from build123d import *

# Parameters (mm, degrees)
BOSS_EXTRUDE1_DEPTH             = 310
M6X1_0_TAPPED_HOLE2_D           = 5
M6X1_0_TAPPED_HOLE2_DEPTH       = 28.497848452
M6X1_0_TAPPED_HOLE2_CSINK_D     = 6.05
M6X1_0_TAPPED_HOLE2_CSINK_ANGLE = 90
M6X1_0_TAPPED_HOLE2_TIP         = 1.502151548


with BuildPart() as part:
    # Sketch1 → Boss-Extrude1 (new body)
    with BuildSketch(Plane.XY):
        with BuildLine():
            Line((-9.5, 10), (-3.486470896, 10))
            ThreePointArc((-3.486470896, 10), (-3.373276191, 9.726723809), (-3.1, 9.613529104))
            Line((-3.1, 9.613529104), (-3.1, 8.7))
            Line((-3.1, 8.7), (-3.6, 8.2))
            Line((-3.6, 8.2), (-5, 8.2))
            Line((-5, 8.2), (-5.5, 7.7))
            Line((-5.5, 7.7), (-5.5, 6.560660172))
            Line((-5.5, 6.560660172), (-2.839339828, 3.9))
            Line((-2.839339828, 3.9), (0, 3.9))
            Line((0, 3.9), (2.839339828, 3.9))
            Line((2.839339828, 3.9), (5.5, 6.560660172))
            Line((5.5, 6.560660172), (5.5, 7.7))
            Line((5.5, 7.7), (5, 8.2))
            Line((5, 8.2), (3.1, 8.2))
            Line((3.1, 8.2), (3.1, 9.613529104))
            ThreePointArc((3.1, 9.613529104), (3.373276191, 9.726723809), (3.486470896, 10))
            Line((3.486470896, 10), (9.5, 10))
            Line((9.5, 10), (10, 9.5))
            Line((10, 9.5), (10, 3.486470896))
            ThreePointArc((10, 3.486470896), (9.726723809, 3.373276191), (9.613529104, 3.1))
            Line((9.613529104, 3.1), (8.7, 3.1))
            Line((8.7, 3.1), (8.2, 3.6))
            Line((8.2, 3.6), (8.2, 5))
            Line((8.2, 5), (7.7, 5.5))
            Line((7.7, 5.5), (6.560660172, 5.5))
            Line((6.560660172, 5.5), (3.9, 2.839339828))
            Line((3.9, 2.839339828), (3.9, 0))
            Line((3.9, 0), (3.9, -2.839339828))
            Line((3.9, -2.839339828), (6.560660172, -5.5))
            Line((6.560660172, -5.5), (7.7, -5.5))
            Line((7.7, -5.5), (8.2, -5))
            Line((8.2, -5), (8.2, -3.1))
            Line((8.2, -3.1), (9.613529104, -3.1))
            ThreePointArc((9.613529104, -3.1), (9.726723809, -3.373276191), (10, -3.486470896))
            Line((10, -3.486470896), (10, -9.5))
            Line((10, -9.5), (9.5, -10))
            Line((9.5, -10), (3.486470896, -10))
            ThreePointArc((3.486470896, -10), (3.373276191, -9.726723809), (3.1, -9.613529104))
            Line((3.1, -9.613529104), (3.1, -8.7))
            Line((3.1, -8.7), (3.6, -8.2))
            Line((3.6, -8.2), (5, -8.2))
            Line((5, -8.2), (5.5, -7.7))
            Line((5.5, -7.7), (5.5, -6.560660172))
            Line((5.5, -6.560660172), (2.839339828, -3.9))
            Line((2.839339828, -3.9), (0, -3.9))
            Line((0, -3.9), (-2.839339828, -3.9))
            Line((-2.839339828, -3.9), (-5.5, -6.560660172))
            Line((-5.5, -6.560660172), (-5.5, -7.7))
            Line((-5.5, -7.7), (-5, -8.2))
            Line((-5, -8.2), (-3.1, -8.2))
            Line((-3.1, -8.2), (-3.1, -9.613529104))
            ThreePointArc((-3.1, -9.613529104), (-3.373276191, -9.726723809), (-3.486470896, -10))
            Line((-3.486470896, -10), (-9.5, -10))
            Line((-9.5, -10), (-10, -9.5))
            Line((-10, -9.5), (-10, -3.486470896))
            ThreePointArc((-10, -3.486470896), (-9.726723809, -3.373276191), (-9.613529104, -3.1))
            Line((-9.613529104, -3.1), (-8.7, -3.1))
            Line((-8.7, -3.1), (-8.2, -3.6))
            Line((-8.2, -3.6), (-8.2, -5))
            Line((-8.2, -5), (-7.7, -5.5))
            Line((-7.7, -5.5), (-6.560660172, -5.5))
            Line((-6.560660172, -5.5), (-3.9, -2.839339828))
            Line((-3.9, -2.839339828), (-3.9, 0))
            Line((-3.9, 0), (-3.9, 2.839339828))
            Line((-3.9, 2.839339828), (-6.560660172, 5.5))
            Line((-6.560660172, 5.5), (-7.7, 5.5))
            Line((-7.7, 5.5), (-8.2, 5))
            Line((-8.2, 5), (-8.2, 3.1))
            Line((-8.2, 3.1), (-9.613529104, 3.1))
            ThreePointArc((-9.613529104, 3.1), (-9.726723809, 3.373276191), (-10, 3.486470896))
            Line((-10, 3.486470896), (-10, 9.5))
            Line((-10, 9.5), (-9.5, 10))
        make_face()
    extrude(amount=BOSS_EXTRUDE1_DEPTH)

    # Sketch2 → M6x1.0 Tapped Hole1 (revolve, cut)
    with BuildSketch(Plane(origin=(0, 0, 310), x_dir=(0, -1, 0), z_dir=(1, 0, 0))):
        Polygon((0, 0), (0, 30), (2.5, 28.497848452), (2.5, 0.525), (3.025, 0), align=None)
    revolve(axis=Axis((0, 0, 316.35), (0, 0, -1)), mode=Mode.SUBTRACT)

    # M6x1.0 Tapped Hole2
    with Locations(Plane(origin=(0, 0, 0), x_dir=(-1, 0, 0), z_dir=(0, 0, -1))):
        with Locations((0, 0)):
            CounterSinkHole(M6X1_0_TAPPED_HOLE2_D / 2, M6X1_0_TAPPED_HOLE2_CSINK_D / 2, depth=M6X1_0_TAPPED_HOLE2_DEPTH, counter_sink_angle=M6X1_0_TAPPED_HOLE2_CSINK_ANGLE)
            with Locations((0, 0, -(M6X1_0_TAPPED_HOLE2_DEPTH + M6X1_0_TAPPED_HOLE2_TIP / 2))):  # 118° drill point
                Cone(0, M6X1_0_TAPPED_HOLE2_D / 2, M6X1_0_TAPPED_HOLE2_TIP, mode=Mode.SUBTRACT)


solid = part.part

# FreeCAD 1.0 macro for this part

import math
import FreeCAD as App
import Part
import Sketcher
from FreeCAD import Vector
Q = App.Units.Quantity


def add_polygon(sketch, points):
    """Adds a closed chain of lines whose ends are joined by coincident constraints."""
    first, n = sketch.GeometryCount, len(points)
    for a, b in zip(points, points[1:] + points[:1]):
        sketch.addGeometry(Part.LineSegment(App.Vector(*a, 0), App.Vector(*b, 0)), False)
    for i in range(n):
        sketch.addConstraint(Sketcher.Constraint("Coincident", first + i, 2, first + (i + 1) % n, 1))

doc = App.newDocument("Part")
body = doc.addObject("PartDesign::Body", "Body")

# Sketch on XY plane
sketch1 = body.newObject("Sketcher::SketchObject", "Sketch")
sketch1.AttachmentSupport = (doc.getObject("XY_Plane"), [""])
sketch1.MapMode = "FlatFace"
sketch1.addGeometry([
    Part.LineSegment(Vector(-3.49, 10, 0), Vector(-9.5, 10, 0)),  # 0
    Part.LineSegment(Vector(-9.5, 10, 0), Vector(-10, 9.5, 0)),  # 1
    Part.LineSegment(Vector(-10, 9.5, 0), Vector(-10, 3.49, 0)),  # 2
    Part.ArcOfCircle(Part.Circle(Vector(-10, 3.1, 0), Vector(0, 0, 1), 0.39), math.radians(0), math.radians(90)),  # 3
    Part.LineSegment(Vector(-9.61, 3.1, 0), Vector(-8.2, 3.1, 0)),  # 4
    Part.LineSegment(Vector(-8.2, 3.1, 0), Vector(-8.2, 5, 0)),  # 5
    Part.LineSegment(Vector(-8.2, 5, 0), Vector(-7.7, 5.5, 0)),  # 6
    Part.LineSegment(Vector(-7.7, 5.5, 0), Vector(-6.56, 5.5, 0)),  # 7
    Part.LineSegment(Vector(-6.56, 5.5, 0), Vector(-3.9, 2.84, 0)),  # 8
    Part.LineSegment(Vector(-3.9, 2.84, 0), Vector(-3.9, -2.84, 0)),  # 9
    Part.LineSegment(Vector(-3.9, -2.84, 0), Vector(-6.56, -5.5, 0)),  # 10
    Part.LineSegment(Vector(-6.56, -5.5, 0), Vector(-7.7, -5.5, 0)),  # 11
    Part.LineSegment(Vector(-7.7, -5.5, 0), Vector(-8.2, -5, 0)),  # 12
    Part.LineSegment(Vector(-8.2, -5, 0), Vector(-8.2, -3.6, 0)),  # 13
    Part.LineSegment(Vector(-8.2, -3.6, 0), Vector(-8.7, -3.1, 0)),  # 14
    Part.LineSegment(Vector(-8.7, -3.1, 0), Vector(-9.61, -3.1, 0)),  # 15
    Part.ArcOfCircle(Part.Circle(Vector(-10, -3.1, 0), Vector(0, 0, 1), 0.39), math.radians(-90), math.radians(0)),  # 16
    Part.LineSegment(Vector(-10, -3.49, 0), Vector(-10, -9.5, 0)),  # 17
    Part.LineSegment(Vector(-10, -9.5, 0), Vector(-9.5, -10, 0)),  # 18
    Part.LineSegment(Vector(-9.5, -10, 0), Vector(-3.49, -10, 0)),  # 19
    Part.ArcOfCircle(Part.Circle(Vector(-3.1, -10, 0), Vector(0, 0, 1), 0.39), math.radians(90), math.radians(180)),  # 20
    Part.LineSegment(Vector(-3.1, -9.61, 0), Vector(-3.1, -8.2, 0)),  # 21
    Part.LineSegment(Vector(-3.1, -8.2, 0), Vector(-5, -8.2, 0)),  # 22
    Part.LineSegment(Vector(-5, -8.2, 0), Vector(-5.5, -7.7, 0)),  # 23
    Part.LineSegment(Vector(-5.5, -7.7, 0), Vector(-5.5, -6.56, 0)),  # 24
    Part.LineSegment(Vector(-5.5, -6.56, 0), Vector(-2.84, -3.9, 0)),  # 25
    Part.LineSegment(Vector(-2.84, -3.9, 0), Vector(2.84, -3.9, 0)),  # 26
    Part.LineSegment(Vector(2.84, -3.9, 0), Vector(5.5, -6.56, 0)),  # 27
    Part.LineSegment(Vector(5.5, -6.56, 0), Vector(5.5, -7.7, 0)),  # 28
    Part.LineSegment(Vector(5.5, -7.7, 0), Vector(5, -8.2, 0)),  # 29
    Part.LineSegment(Vector(5, -8.2, 0), Vector(3.6, -8.2, 0)),  # 30
    Part.LineSegment(Vector(3.6, -8.2, 0), Vector(3.1, -8.7, 0)),  # 31
    Part.LineSegment(Vector(3.1, -8.7, 0), Vector(3.1, -9.61, 0)),  # 32
    Part.ArcOfCircle(Part.Circle(Vector(3.1, -10, 0), Vector(0, 0, 1), 0.39), math.radians(0), math.radians(90)),  # 33
    Part.LineSegment(Vector(3.49, -10, 0), Vector(9.5, -10, 0)),  # 34
    Part.LineSegment(Vector(9.5, -10, 0), Vector(10, -9.5, 0)),  # 35
    Part.LineSegment(Vector(10, -9.5, 0), Vector(10, -3.49, 0)),  # 36
    Part.ArcOfCircle(Part.Circle(Vector(10, -3.1, 0), Vector(0, 0, 1), 0.39), math.radians(-180), math.radians(-90)),  # 37
    Part.LineSegment(Vector(9.61, -3.1, 0), Vector(8.2, -3.1, 0)),  # 38
    Part.LineSegment(Vector(8.2, -3.1, 0), Vector(8.2, -5, 0)),  # 39
    Part.LineSegment(Vector(8.2, -5, 0), Vector(7.7, -5.5, 0)),  # 40
    Part.LineSegment(Vector(7.7, -5.5, 0), Vector(6.56, -5.5, 0)),  # 41
    Part.LineSegment(Vector(6.56, -5.5, 0), Vector(3.9, -2.84, 0)),  # 42
    Part.LineSegment(Vector(3.9, -2.84, 0), Vector(3.9, 2.84, 0)),  # 43
    Part.LineSegment(Vector(3.9, 2.84, 0), Vector(6.56, 5.5, 0)),  # 44
    Part.LineSegment(Vector(6.56, 5.5, 0), Vector(7.7, 5.5, 0)),  # 45
    Part.LineSegment(Vector(7.7, 5.5, 0), Vector(8.2, 5, 0)),  # 46
    Part.LineSegment(Vector(8.2, 5, 0), Vector(8.2, 3.6, 0)),  # 47
    Part.LineSegment(Vector(8.2, 3.6, 0), Vector(8.7, 3.1, 0)),  # 48
    Part.LineSegment(Vector(8.7, 3.1, 0), Vector(9.61, 3.1, 0)),  # 49
    Part.ArcOfCircle(Part.Circle(Vector(10, 3.1, 0), Vector(0, 0, 1), 0.39), math.radians(90), math.radians(180)),  # 50
    Part.LineSegment(Vector(10, 3.49, 0), Vector(10, 9.5, 0)),  # 51
    Part.LineSegment(Vector(10, 9.5, 0), Vector(9.5, 10, 0)),  # 52
    Part.LineSegment(Vector(9.5, 10, 0), Vector(3.49, 10, 0)),  # 53
    Part.ArcOfCircle(Part.Circle(Vector(3.1, 10, 0), Vector(0, 0, 1), 0.39), math.radians(-90), math.radians(0)),  # 54
    Part.LineSegment(Vector(3.1, 9.61, 0), Vector(3.1, 8.2, 0)),  # 55
    Part.LineSegment(Vector(3.1, 8.2, 0), Vector(5, 8.2, 0)),  # 56
    Part.LineSegment(Vector(5, 8.2, 0), Vector(5.5, 7.7, 0)),  # 57
    Part.LineSegment(Vector(5.5, 7.7, 0), Vector(5.5, 6.56, 0)),  # 58
    Part.LineSegment(Vector(5.5, 6.56, 0), Vector(2.84, 3.9, 0)),  # 59
    Part.LineSegment(Vector(2.84, 3.9, 0), Vector(-2.84, 3.9, 0)),  # 60
    Part.LineSegment(Vector(-2.84, 3.9, 0), Vector(-5.5, 6.56, 0)),  # 61
    Part.LineSegment(Vector(-5.5, 6.56, 0), Vector(-5.5, 7.7, 0)),  # 62
    Part.LineSegment(Vector(-5.5, 7.7, 0), Vector(-5, 8.2, 0)),  # 63
    Part.LineSegment(Vector(-5, 8.2, 0), Vector(-3.6, 8.2, 0)),  # 64
    Part.LineSegment(Vector(-3.6, 8.2, 0), Vector(-3.1, 8.7, 0)),  # 65
    Part.LineSegment(Vector(-3.1, 8.7, 0), Vector(-3.1, 9.61, 0)),  # 66
    Part.ArcOfCircle(Part.Circle(Vector(-3.1, 10, 0), Vector(0, 0, 1), 0.39), math.radians(-180), math.radians(-90)),  # 67
], False)
sketch1.addConstraint([
    Sketcher.Constraint("Coincident", 0, 2, 1, 1),
    Sketcher.Constraint("Coincident", 1, 2, 2, 1),
    Sketcher.Constraint("Coincident", 2, 2, 3, 2),
    Sketcher.Constraint("Coincident", 3, 1, 4, 1),
    Sketcher.Constraint("Coincident", 4, 2, 5, 1),
    Sketcher.Constraint("Coincident", 5, 2, 6, 1),
    Sketcher.Constraint("Coincident", 6, 2, 7, 1),
    Sketcher.Constraint("Coincident", 7, 2, 8, 1),
    Sketcher.Constraint("Coincident", 8, 2, 9, 1),
    Sketcher.Constraint("Coincident", 9, 2, 10, 1),
    Sketcher.Constraint("Coincident", 10, 2, 11, 1),
    Sketcher.Constraint("Coincident", 11, 2, 12, 1),
    Sketcher.Constraint("Coincident", 12, 2, 13, 1),
    Sketcher.Constraint("Coincident", 13, 2, 14, 1),
    Sketcher.Constraint("Coincident", 14, 2, 15, 1),
    Sketcher.Constraint("Coincident", 15, 2, 16, 2),
    Sketcher.Constraint("Coincident", 16, 1, 17, 1),
    Sketcher.Constraint("Coincident", 17, 2, 18, 1),
    Sketcher.Constraint("Coincident", 18, 2, 19, 1),
    Sketcher.Constraint("Coincident", 19, 2, 20, 2),
    Sketcher.Constraint("Coincident", 20, 1, 21, 1),
    Sketcher.Constraint("Coincident", 21, 2, 22, 1),
    Sketcher.Constraint("Coincident", 22, 2, 23, 1),
    Sketcher.Constraint("Coincident", 23, 2, 24, 1),
    Sketcher.Constraint("Coincident", 24, 2, 25, 1),
    Sketcher.Constraint("Coincident", 25, 2, 26, 1),
    Sketcher.Constraint("Coincident", 26, 2, 27, 1),
    Sketcher.Constraint("Coincident", 27, 2, 28, 1),
    Sketcher.Constraint("Coincident", 28, 2, 29, 1),
    Sketcher.Constraint("Coincident", 29, 2, 30, 1),
    Sketcher.Constraint("Coincident", 30, 2, 31, 1),
    Sketcher.Constraint("Coincident", 31, 2, 32, 1),
    Sketcher.Constraint("Coincident", 32, 2, 33, 2),
    Sketcher.Constraint("Coincident", 33, 1, 34, 1),
    Sketcher.Constraint("Coincident", 34, 2, 35, 1),
    Sketcher.Constraint("Coincident", 35, 2, 36, 1),
    Sketcher.Constraint("Coincident", 36, 2, 37, 2),
    Sketcher.Constraint("Coincident", 37, 1, 38, 1),
    Sketcher.Constraint("Coincident", 38, 2, 39, 1),
    Sketcher.Constraint("Coincident", 39, 2, 40, 1),
    Sketcher.Constraint("Coincident", 40, 2, 41, 1),
    Sketcher.Constraint("Coincident", 41, 2, 42, 1),
    Sketcher.Constraint("Coincident", 42, 2, 43, 1),
    Sketcher.Constraint("Coincident", 43, 2, 44, 1),
    Sketcher.Constraint("Coincident", 44, 2, 45, 1),
    Sketcher.Constraint("Coincident", 45, 2, 46, 1),
    Sketcher.Constraint("Coincident", 46, 2, 47, 1),
    Sketcher.Constraint("Coincident", 47, 2, 48, 1),
    Sketcher.Constraint("Coincident", 48, 2, 49, 1),
    Sketcher.Constraint("Coincident", 49, 2, 50, 2),
    Sketcher.Constraint("Coincident", 50, 1, 51, 1),
    Sketcher.Constraint("Coincident", 51, 2, 52, 1),
    Sketcher.Constraint("Coincident", 52, 2, 53, 1),
    Sketcher.Constraint("Coincident", 53, 2, 54, 2),
    Sketcher.Constraint("Coincident", 54, 1, 55, 1),
    Sketcher.Constraint("Coincident", 55, 2, 56, 1),
    Sketcher.Constraint("Coincident", 56, 2, 57, 1),
    Sketcher.Constraint("Coincident", 57, 2, 58, 1),
    Sketcher.Constraint("Coincident", 58, 2, 59, 1),
    Sketcher.Constraint("Coincident", 59, 2, 60, 1),
    Sketcher.Constraint("Coincident", 60, 2, 61, 1),
    Sketcher.Constraint("Coincident", 61, 2, 62, 1),
    Sketcher.Constraint("Coincident", 62, 2, 63, 1),
    Sketcher.Constraint("Coincident", 63, 2, 64, 1),
    Sketcher.Constraint("Coincident", 64, 2, 65, 1),
    Sketcher.Constraint("Coincident", 65, 2, 66, 1),
    Sketcher.Constraint("Coincident", 66, 2, 67, 2),
    Sketcher.Constraint("Coincident", 67, 1, 0, 1),
    Sketcher.Constraint("Horizontal", 0),
    Sketcher.Constraint("Vertical", 2),
    Sketcher.Constraint("Horizontal", 4),
    Sketcher.Constraint("Vertical", 5),
    Sketcher.Constraint("Horizontal", 7),
    Sketcher.Constraint("Vertical", 9),
    Sketcher.Constraint("Horizontal", 11),
    Sketcher.Constraint("Vertical", 13),
    Sketcher.Constraint("Horizontal", 15),
    Sketcher.Constraint("Vertical", 17),
    Sketcher.Constraint("Horizontal", 19),
    Sketcher.Constraint("Vertical", 21),
    Sketcher.Constraint("Horizontal", 22),
    Sketcher.Constraint("Vertical", 24),
    Sketcher.Constraint("Horizontal", 26),
    Sketcher.Constraint("Vertical", 28),
    Sketcher.Constraint("Horizontal", 30),
    Sketcher.Constraint("Vertical", 32),
    Sketcher.Constraint("Horizontal", 34),
    Sketcher.Constraint("Vertical", 36),
    Sketcher.Constraint("Horizontal", 38),
    Sketcher.Constraint("Vertical", 39),
    Sketcher.Constraint("Horizontal", 41),
    Sketcher.Constraint("Vertical", 43),
    Sketcher.Constraint("Horizontal", 45),
    Sketcher.Constraint("Vertical", 47),
    Sketcher.Constraint("Horizontal", 49),
    Sketcher.Constraint("Vertical", 51),
    Sketcher.Constraint("Horizontal", 53),
    Sketcher.Constraint("Vertical", 55),
    Sketcher.Constraint("Horizontal", 56),
    Sketcher.Constraint("Vertical", 58),
    Sketcher.Constraint("Horizontal", 60),
    Sketcher.Constraint("Vertical", 62),
    Sketcher.Constraint("Horizontal", 64),
    Sketcher.Constraint("Vertical", 66),
    Sketcher.Constraint("Equal", 3, 16),
    Sketcher.Constraint("Equal", 16, 20),
    Sketcher.Constraint("Equal", 20, 33),
    Sketcher.Constraint("Equal", 33, 37),
    Sketcher.Constraint("Equal", 37, 50),
    Sketcher.Constraint("Equal", 50, 54),
    Sketcher.Constraint("Equal", 54, 67),
    Sketcher.Constraint("Symmetric", 3, 3, 37, 3, -1, 1),
    Sketcher.Constraint("Symmetric", 16, 3, 50, 3, -1, 1),
    Sketcher.Constraint("Symmetric", 20, 3, 54, 3, -1, 1),
    Sketcher.Constraint("Symmetric", 33, 3, 67, 3, -1, 1),
    Sketcher.Constraint("Symmetric", 0, 2, 34, 2, -1, 1),
    Sketcher.Constraint("Symmetric", 1, 2, 35, 2, -1, 1),
    Sketcher.Constraint("Symmetric", 4, 2, 38, 2, -1, 1),
    Sketcher.Constraint("Symmetric", 6, 2, 40, 2, -1, 1),
    Sketcher.Constraint("Symmetric", 8, 2, 42, 2, -1, 1),
    Sketcher.Constraint("Symmetric", 10, 2, 44, 2, -1, 1),
    Sketcher.Constraint("Symmetric", 12, 2, 46, 2, -1, 1),
    Sketcher.Constraint("Symmetric", 14, 2, 48, 2, -1, 1),
    Sketcher.Constraint("Symmetric", 17, 2, 51, 2, -1, 1),
    Sketcher.Constraint("Symmetric", 18, 2, 52, 2, -1, 1),
    Sketcher.Constraint("Symmetric", 21, 2, 55, 2, -1, 1),
    Sketcher.Constraint("Symmetric", 23, 2, 57, 2, -1, 1),
    Sketcher.Constraint("Symmetric", 25, 2, 59, 2, -1, 1),
    Sketcher.Constraint("Symmetric", 27, 2, 61, 2, -1, 1),
    Sketcher.Constraint("Symmetric", 29, 2, 63, 2, -1, 1),
    Sketcher.Constraint("Symmetric", 31, 2, 65, 2, -1, 1),
    Sketcher.Constraint("Symmetric", 20, 3, 33, 3, -2),
    Sketcher.Constraint("Symmetric", 16, 3, 37, 3, -2),
    Sketcher.Constraint("Symmetric", 24, 2, 27, 2, -2),
    Sketcher.Constraint("Symmetric", 22, 2, 29, 2, -2),
    Sketcher.Constraint("Symmetric", 18, 2, 34, 2, -2),
    Sketcher.Constraint("Symmetric", 17, 2, 35, 2, -2),
    Sketcher.Constraint("Symmetric", 12, 2, 39, 2, -2),
    Sketcher.Constraint("Symmetric", 11, 2, 40, 2, -2),
    Sketcher.Constraint("Parallel", 1, 6),
    Sketcher.Constraint("Perpendicular", 6, 8),
    Sketcher.Constraint("Perpendicular", 8, 10),
    Sketcher.Constraint("Perpendicular", 10, 12),
    Sketcher.Constraint("Parallel", 12, 14),
    Sketcher.Constraint("Parallel", 14, 18),
    Sketcher.Constraint("Parallel", 18, 23),
    Sketcher.Constraint("Perpendicular", 23, 25),
    Sketcher.Constraint("Perpendicular", 25, 27),
    Sketcher.Constraint("Perpendicular", 27, 29),
    Sketcher.Constraint("Parallel", 29, 31),
    Sketcher.Constraint("Perpendicular", 40, 42),
    Sketcher.Constraint("Perpendicular", 42, 44),
    Sketcher.Constraint("Perpendicular", 44, 46),
    Sketcher.Constraint("Parallel", 46, 48),
    Sketcher.Constraint("Parallel", 52, 57),
    Sketcher.Constraint("Perpendicular", 57, 59),
    Sketcher.Constraint("Perpendicular", 59, 61),
    Sketcher.Constraint("Perpendicular", 61, 63),
    Sketcher.Constraint("Parallel", 63, 65),
    Sketcher.Constraint("Horizontal", 67, 3, 0, 2),
    Sketcher.Constraint("Horizontal", 50, 3, 3, 1),
    Sketcher.Constraint("Horizontal", 37, 3, 14, 2),
    Sketcher.Constraint("Horizontal", 9, 2, 42, 2),
    Sketcher.Constraint("Vertical", 16, 3, 1, 2),
    Sketcher.Constraint("Vertical", 67, 3, 20, 1),
    Sketcher.Constraint("Vertical", 54, 3, 31, 2),
    Sketcher.Constraint("Equal", 53, 2),
    Sketcher.Constraint("Equal", 56, 5),
    Sketcher.Constraint("Equal", 60, 9),
    Sketcher.Constraint("Equal", 64, 13),
    Sketcher.Constraint("Equal", 38, 21),
    Sketcher.Constraint("Equal", 45, 24),
    Sketcher.Constraint("Equal", 1, 6),
    Sketcher.Constraint("Equal", 12, 14),
    Sketcher.Constraint("Equal", 18, 23),
    Sketcher.Constraint("Equal", 10, 25),
    Sketcher.Constraint("DistanceX", 22, 2, 22, 1, 1.9),
    Sketcher.Constraint("DistanceX", 30, 2, 30, 1, 1.4),
    Sketcher.Constraint("DistanceX", 3, 3, -1, 1, 10.0),
    Sketcher.Constraint("DistanceY", -1, 1, 5, 2, 5.0),
    Sketcher.Constraint("DistanceX", 4, 2, -1, 1, 8.2),
    Sketcher.Constraint("DistanceX", 8, 2, -1, 1, 3.9),
    Sketcher.Constraint("Radius", 3, 0.386471),
    Sketcher.Constraint("DistanceX", 7, 1, 7, 2, 1.13934),
])
pad1 = body.newObject("PartDesign::Pad", "Pad")
pad1.Profile = sketch1
pad1.Length = 310

# Sketch on YZ plane
sketch2 = body.newObject("Sketcher::SketchObject", "Sketch001")
sketch2.AttachmentSupport = (doc.getObject("YZ_Plane"), [""])
sketch2.MapMode = "FlatFace"
add_polygon(sketch2, [(0, 280), (0, 310), (-3, 310), (-2.5, 309.5), (-2.5, 281.5)])  # lines 0-4
sketch2.addConstraint([
    Sketcher.Constraint("Vertical", 0),
    Sketcher.Constraint("Horizontal", 1),
    Sketcher.Constraint("Vertical", 3),
    Sketcher.Constraint("PointOnObject", 0, 2, -2),
    Sketcher.Constraint("DistanceY", 0, 1, 0, 2, 30.0),
    Sketcher.Constraint("Angle", 2, Q("-45 deg")),
    Sketcher.Constraint("Angle", 4, Q("-31 deg")),
    Sketcher.Constraint("DistanceY", -1, 1, 0, 2, 310.0),
    Sketcher.Constraint("DistanceX", 2, 2, -1, 1, 2.5),
    Sketcher.Constraint("DistanceX", 1, 2, 1, 1, 3.025),
])
groove = body.newObject("PartDesign::Groove", "Groove")
groove.Profile = sketch2
groove.ReferenceAxis = (sketch2, ["V_Axis"])
groove.Angle = 360

# Sketch on XY plane
sketch3 = body.newObject("Sketcher::SketchObject", "Sketch002")
sketch3.AttachmentSupport = (doc.getObject("XY_Plane"), [""])
sketch3.MapMode = "FlatFace"
sketch3.addGeometry(Part.Circle(Vector(0, 0, 0), Vector(0, 0, 1), 2.5), False)
sketch3.addConstraint([
    Sketcher.Constraint("Coincident", 0, 3, -1, 1),
    Sketcher.Constraint("Diameter", 0, 5.0),
])
doc.recompute()
hole = body.newObject("PartDesign::Hole", "Hole")
hole.Profile = sketch3
hole.ThreadType = "None"
hole.Diameter = 5
hole.DepthType = "Dimension"
hole.Depth = 28.497848
hole.DrillPoint = "Angled"
hole.DrillPointAngle = 118
hole.HoleCutType = "Countersink"
hole.HoleCutDiameter = 6.05
hole.HoleCutCountersinkAngle = 90
hole.Reversed = True

doc.recompute()
